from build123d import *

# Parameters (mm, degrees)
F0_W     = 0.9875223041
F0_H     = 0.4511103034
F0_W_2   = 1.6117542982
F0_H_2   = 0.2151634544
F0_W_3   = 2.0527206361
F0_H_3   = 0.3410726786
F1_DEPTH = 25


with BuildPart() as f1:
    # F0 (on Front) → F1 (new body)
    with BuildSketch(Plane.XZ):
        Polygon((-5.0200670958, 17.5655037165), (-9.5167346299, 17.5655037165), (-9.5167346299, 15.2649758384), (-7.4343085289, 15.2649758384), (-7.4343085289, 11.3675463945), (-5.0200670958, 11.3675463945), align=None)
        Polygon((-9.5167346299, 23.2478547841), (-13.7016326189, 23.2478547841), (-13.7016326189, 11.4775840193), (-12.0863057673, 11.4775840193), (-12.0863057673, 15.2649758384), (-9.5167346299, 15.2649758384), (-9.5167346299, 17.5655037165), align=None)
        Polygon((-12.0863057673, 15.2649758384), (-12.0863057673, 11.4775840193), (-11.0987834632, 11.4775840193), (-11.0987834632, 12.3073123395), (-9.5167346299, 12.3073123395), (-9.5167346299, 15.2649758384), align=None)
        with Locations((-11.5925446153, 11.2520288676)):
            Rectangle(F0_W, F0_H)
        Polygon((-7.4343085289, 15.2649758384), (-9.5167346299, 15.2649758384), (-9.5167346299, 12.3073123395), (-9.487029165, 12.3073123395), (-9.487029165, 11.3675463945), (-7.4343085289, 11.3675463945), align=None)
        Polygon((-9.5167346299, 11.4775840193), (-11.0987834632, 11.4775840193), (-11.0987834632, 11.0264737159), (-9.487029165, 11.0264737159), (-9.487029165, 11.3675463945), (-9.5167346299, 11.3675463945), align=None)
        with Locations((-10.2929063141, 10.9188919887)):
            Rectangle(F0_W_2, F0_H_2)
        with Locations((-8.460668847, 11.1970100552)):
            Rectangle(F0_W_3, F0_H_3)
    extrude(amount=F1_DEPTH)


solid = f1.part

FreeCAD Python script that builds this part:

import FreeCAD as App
import Part
import Sketcher

V = App.Vector


def add_polygon(sketch, points):
    """Adds a closed chain of lines whose ends are joined by coincident constraints."""
    first, n = sketch.GeometryCount, len(points)
    for a, b in zip(points, points[1:] + points[:1]):
        sketch.addGeometry(Part.LineSegment(App.Vector(*a, 0), App.Vector(*b, 0)), False)
    for i in range(n):
        sketch.addConstraint(Sketcher.Constraint("Coincident", first + i, 2, first + (i + 1) % n, 1))

doc = App.newDocument("Part")
body = doc.addObject("PartDesign::Body", "Body")

sketch1 = body.newObject("Sketcher::SketchObject", "Sketch")
sketch1.AttachmentSupport = (doc.getObject("XZ_Plane"), [""])
sketch1.MapMode = "FlatFace"
add_polygon(sketch1, [(-9.487, 10.811), (-9.487, 11.026), (-7.434, 11.026), (-7.434, 11.368), (-5.02, 11.368), (-5.02, 17.566), (-9.517, 17.566), (-9.517, 23.248), (-13.702, 23.248), (-13.702, 11.478), (-12.086, 11.478), (-12.086, 11.026), (-11.099, 11.026), (-11.099, 10.811)])
add_polygon(sketch1, [(-9.487, 12.307), (-9.487, 11.368), (-9.517, 11.368), (-9.517, 11.478), (-11.099, 11.478), (-11.099, 12.307)])
sketch1.addConstraint([
    Sketcher.Constraint("Vertical", 0),
    Sketcher.Constraint("Horizontal", 1),
    Sketcher.Constraint("Vertical", 2),
    Sketcher.Constraint("Horizontal", 3),
    Sketcher.Constraint("Vertical", 4),
    Sketcher.Constraint("Horizontal", 5),
    Sketcher.Constraint("Vertical", 6),
    Sketcher.Constraint("Horizontal", 7),
    Sketcher.Constraint("Vertical", 8),
    Sketcher.Constraint("Horizontal", 9),
    Sketcher.Constraint("Vertical", 10),
    Sketcher.Constraint("Horizontal", 11),
    Sketcher.Constraint("Vertical", 12),
    Sketcher.Constraint("Horizontal", 13),
    Sketcher.Constraint("Vertical", 14),
    Sketcher.Constraint("Horizontal", 15),
    Sketcher.Constraint("Vertical", 16),
    Sketcher.Constraint("Horizontal", 17),
    Sketcher.Constraint("Vertical", 18),
    Sketcher.Constraint("Horizontal", 19),
    Sketcher.Constraint("Horizontal", 1, 2, 10, 2),
    Sketcher.Constraint("Horizontal", 3, 2, 14, 2),
    Sketcher.Constraint("Horizontal", 9, 2, 16, 2),
    Sketcher.Constraint("Vertical", 13, 2, 14, 2),
    Sketcher.Constraint("Vertical", 6, 2, 15, 2),
    Sketcher.Constraint("Vertical", 12, 2, 17, 2),
    Sketcher.Constraint("DistanceX", 1, 1, 1, 2, 2.052721),
    Sketcher.Constraint("DistanceX", 3, 1, 3, 2, 2.414241),
    Sketcher.Constraint("DistanceX", 17, 2, 17, 1, 1.582049),
    Sketcher.Constraint("DistanceY", 6, 1, 6, 2, 5.682351),
    Sketcher.Constraint("DistanceY", 8, 2, 8, 1, 11.770271),
    Sketcher.Constraint("DistanceY", 10, 2, 10, 1, 0.45111),
    Sketcher.Constraint("DistanceY", 18, 1, 18, 2, 0.829728),
    Sketcher.Constraint("DistanceX", 5, 2, 5, 1, 4.496668),
    Sketcher.Constraint("DistanceX", 7, 2, 7, 1, 4.184898),
    Sketcher.Constraint("DistanceX", 9, 1, 9, 2, 1.615327),
    Sketcher.Constraint("DistanceY", 0, 1, 0, 2, 0.215163),
    Sketcher.Constraint("DistanceY", 2, 1, 2, 2, 0.341073),
    Sketcher.Constraint("DistanceX", 0, 2, -1, 1, 9.487029),
    Sketcher.Constraint("DistanceY", -1, 1, 12, 2, 10.81131),
])
pad1 = body.newObject("PartDesign::Pad", "Pad")
pad1.Profile = sketch1
pad1.Length = 25

doc.recompute()
